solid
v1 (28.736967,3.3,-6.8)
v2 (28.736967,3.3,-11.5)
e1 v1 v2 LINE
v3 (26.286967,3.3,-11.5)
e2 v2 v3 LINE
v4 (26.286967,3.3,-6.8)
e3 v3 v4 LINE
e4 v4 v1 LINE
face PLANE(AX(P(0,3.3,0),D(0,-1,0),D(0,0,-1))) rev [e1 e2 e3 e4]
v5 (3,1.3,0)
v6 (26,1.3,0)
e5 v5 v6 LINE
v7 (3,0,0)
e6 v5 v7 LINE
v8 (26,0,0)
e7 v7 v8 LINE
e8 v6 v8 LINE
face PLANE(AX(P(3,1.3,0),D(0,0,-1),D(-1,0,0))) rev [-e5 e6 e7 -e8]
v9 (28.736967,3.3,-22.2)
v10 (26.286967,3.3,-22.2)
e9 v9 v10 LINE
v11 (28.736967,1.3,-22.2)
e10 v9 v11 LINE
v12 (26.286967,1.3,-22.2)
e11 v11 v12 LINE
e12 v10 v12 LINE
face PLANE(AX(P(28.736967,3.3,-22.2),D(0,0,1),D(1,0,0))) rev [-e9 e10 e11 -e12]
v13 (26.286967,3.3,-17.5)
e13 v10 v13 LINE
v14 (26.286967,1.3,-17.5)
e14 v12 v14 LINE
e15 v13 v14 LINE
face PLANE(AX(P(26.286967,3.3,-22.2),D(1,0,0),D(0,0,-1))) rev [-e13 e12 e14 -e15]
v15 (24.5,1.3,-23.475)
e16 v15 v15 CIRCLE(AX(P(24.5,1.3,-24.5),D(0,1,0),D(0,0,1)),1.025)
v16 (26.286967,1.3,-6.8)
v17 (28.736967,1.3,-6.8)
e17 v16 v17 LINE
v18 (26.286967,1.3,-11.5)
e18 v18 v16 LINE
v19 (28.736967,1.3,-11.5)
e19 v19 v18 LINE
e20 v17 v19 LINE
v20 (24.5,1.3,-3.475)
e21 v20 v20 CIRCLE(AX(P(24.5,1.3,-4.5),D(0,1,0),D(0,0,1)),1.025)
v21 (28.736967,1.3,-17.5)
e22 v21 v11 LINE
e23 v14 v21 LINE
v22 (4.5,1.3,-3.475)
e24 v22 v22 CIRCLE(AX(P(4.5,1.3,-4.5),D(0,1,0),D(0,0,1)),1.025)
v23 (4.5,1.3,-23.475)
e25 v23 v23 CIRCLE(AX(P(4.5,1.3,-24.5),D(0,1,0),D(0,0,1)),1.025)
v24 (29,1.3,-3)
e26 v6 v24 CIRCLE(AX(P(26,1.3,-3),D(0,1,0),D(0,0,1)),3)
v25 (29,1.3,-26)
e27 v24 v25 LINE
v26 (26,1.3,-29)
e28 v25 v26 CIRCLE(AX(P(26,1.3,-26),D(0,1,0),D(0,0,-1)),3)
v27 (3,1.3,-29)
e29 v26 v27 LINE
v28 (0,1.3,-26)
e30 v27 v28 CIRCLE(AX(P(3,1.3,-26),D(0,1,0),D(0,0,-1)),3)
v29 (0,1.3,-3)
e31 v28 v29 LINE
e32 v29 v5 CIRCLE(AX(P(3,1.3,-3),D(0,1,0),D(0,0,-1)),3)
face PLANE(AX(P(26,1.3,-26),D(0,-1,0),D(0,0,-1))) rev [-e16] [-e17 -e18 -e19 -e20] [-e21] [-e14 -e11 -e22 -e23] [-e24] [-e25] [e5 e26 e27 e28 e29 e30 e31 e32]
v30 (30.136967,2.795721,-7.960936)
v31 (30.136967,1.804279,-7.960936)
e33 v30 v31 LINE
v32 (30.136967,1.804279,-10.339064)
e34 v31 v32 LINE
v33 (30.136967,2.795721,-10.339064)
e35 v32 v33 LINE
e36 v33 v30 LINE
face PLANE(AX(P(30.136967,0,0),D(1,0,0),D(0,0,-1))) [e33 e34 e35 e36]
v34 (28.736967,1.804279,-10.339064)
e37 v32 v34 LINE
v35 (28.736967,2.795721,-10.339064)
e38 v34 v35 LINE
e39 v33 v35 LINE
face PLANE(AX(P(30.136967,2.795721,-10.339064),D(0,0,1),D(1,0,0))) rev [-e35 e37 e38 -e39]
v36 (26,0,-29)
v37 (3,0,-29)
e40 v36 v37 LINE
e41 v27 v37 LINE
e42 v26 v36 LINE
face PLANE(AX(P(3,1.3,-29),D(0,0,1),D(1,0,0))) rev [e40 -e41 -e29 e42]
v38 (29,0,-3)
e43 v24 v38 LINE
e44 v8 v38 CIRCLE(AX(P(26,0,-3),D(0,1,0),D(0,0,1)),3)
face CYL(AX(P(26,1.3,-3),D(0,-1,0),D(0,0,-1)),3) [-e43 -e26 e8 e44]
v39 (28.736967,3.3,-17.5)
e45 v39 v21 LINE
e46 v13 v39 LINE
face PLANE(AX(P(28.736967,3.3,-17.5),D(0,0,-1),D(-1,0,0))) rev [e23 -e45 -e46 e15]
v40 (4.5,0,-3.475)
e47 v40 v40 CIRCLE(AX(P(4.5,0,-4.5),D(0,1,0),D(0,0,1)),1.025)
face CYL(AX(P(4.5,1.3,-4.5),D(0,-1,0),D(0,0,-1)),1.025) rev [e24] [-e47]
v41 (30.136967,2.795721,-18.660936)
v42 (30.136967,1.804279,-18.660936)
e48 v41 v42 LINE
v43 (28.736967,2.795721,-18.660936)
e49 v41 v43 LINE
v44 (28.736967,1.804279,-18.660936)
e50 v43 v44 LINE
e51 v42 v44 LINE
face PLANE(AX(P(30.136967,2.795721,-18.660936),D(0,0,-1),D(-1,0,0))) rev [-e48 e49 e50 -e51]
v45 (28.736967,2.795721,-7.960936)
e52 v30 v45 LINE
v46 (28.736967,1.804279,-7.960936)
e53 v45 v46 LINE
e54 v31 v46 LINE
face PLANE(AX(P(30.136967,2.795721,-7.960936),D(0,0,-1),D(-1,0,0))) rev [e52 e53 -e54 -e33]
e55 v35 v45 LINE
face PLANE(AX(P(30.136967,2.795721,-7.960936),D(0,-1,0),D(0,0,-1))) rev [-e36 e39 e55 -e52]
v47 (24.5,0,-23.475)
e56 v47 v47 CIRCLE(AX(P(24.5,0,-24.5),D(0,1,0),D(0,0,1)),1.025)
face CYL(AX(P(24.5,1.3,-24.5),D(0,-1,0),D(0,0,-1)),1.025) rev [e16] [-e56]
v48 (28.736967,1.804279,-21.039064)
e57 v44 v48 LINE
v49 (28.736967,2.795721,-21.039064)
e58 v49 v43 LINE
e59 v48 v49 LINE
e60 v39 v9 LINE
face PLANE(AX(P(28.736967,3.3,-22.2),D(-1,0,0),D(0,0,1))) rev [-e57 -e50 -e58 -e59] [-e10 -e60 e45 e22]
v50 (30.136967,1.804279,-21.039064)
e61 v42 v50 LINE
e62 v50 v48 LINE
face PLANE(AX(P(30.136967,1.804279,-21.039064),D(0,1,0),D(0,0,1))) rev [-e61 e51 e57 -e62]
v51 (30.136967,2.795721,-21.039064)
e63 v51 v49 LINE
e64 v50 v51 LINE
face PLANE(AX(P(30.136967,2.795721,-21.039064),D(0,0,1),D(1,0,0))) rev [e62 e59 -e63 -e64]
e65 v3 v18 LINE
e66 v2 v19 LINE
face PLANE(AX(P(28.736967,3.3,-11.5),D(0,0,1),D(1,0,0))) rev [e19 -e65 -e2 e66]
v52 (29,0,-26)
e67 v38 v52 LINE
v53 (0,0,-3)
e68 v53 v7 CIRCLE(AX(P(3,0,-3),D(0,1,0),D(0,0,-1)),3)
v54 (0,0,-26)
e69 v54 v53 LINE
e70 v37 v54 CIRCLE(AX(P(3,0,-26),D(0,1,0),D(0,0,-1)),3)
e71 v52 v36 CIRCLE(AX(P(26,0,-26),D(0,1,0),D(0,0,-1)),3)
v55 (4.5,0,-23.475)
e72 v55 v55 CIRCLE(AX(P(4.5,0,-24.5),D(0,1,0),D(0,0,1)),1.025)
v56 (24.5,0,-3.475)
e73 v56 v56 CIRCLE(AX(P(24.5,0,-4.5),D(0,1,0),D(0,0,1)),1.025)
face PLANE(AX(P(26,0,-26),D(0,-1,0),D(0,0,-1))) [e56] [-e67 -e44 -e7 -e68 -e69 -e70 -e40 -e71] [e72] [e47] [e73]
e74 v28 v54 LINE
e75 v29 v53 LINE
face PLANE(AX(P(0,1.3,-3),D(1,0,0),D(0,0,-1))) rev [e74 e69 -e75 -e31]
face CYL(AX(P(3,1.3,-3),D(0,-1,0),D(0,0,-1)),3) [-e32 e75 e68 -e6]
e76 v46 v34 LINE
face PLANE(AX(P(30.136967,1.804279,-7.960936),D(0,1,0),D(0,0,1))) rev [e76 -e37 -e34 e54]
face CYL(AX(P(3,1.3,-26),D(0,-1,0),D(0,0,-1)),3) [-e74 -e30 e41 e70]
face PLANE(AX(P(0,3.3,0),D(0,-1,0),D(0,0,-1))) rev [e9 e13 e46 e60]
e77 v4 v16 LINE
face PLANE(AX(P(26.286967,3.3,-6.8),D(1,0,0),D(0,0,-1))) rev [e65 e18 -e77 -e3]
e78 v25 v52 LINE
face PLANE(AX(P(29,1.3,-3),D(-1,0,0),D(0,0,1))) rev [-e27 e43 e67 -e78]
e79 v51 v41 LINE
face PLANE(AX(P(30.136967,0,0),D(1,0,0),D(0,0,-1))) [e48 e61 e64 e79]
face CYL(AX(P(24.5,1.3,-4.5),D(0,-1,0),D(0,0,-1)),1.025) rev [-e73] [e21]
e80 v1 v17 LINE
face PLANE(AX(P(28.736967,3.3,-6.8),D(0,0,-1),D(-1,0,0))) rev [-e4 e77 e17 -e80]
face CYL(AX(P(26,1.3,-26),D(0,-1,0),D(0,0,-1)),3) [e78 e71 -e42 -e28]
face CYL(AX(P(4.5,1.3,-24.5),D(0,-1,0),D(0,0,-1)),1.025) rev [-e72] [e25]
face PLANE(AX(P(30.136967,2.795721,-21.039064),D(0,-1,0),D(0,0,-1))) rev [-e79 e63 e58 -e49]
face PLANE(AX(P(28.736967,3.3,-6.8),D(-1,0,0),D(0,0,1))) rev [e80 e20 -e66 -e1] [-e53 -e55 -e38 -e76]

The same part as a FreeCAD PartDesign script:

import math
import FreeCAD as App
import Part
import Sketcher
Q = App.Units.Quantity

doc = App.newDocument("Part")
body = doc.addObject("PartDesign::Body", "Body")

# Sketch on XZ plane
sketch1 = body.newObject("Sketcher::SketchObject", "Sketch")
sketch1.AttachmentSupport = (doc.getObject("XZ_Plane"), [""])
sketch1.MapMode = "FlatFace"
sketch1.addGeometry([
    Part.LineSegment(App.Vector(3, 0, 0), App.Vector(26, 0, 0)),  # 0
    Part.ArcOfCircle(Part.Circle(App.Vector(26, -3, 0), App.Vector(0, 0, 1), 3), math.radians(0), math.radians(90)),  # 1
    Part.LineSegment(App.Vector(29, -3, 0), App.Vector(29, -26, 0)),  # 2
    Part.ArcOfCircle(Part.Circle(App.Vector(26, -26, 0), App.Vector(0, 0, 1), 3), math.radians(-90), math.radians(0)),  # 3
    Part.LineSegment(App.Vector(26, -29, 0), App.Vector(3, -29, 0)),  # 4
    Part.ArcOfCircle(Part.Circle(App.Vector(3, -26, 0), App.Vector(0, 0, 1), 3), math.radians(180), math.radians(270)),  # 5
    Part.LineSegment(App.Vector(0, -26, 0), App.Vector(0, -3, 0)),  # 6
    Part.ArcOfCircle(Part.Circle(App.Vector(3, -3, 0), App.Vector(0, 0, 1), 3), math.radians(90), math.radians(180)),  # 7
    Part.Circle(App.Vector(4.5, -4.5, 0), App.Vector(0, 0, 1), 1),  # 8
    Part.Circle(App.Vector(24.5, -4.5, 0), App.Vector(0, 0, 1), 1),  # 9
    Part.Circle(App.Vector(4.5, -24.5, 0), App.Vector(0, 0, 1), 1),  # 10
    Part.Circle(App.Vector(24.5, -24.5, 0), App.Vector(0, 0, 1), 1),  # 11
], False)
sketch1.addConstraint([
    Sketcher.Constraint("Tangent", 0, 2, 1, 2),
    Sketcher.Constraint("Tangent", 1, 1, 2, 1),
    Sketcher.Constraint("Tangent", 2, 2, 3, 2),
    Sketcher.Constraint("Tangent", 3, 1, 4, 1),
    Sketcher.Constraint("Tangent", 4, 2, 5, 2),
    Sketcher.Constraint("Tangent", 5, 1, 6, 1),
    Sketcher.Constraint("Tangent", 6, 2, 7, 2),
    Sketcher.Constraint("Tangent", 7, 1, 0, 1),
    Sketcher.Constraint("Horizontal", 0),
    Sketcher.Constraint("Vertical", 2),
    Sketcher.Constraint("Horizontal", 4),
    Sketcher.Constraint("Vertical", 6),
    Sketcher.Constraint("Equal", 1, 3),
    Sketcher.Constraint("Equal", 3, 5),
    Sketcher.Constraint("Equal", 5, 7),
    Sketcher.Constraint("Equal", 8, 9),
    Sketcher.Constraint("Equal", 9, 10),
    Sketcher.Constraint("Equal", 10, 11),
    Sketcher.Constraint("PointOnObject", 0, 2, -1),
    Sketcher.Constraint("PointOnObject", 5, 1, -2),
    Sketcher.Constraint("Horizontal", 8, 3, 9, 3),
    Sketcher.Constraint("Horizontal", 10, 3, 11, 3),
    Sketcher.Constraint("Vertical", 8, 3, 10, 3),
    Sketcher.Constraint("Vertical", 9, 3, 11, 3),
    Sketcher.Constraint("Equal", 4, 2),
    Sketcher.Constraint("Radius", 1, Q("3 mm")),
    Sketcher.Constraint("Diameter", 8, Q("2.05 mm")),
    Sketcher.Constraint("DistanceX", 0, 1, 0, 2, Q("23 mm")),
    Sketcher.Constraint("DistanceX", 8, 3, 9, 3, Q("20 mm")),
    Sketcher.Constraint("DistanceY", 10, 3, 8, 3, Q("20 mm")),
    Sketcher.Constraint("DistanceX", -1, 1, 8, 3, Q("4.5 mm")),
    Sketcher.Constraint("DistanceY", 8, 3, -1, 1, Q("4.5 mm")),
])
pad1 = body.newObject("PartDesign::Pad", "Pad")
pad1.Profile = sketch1
pad1.Length = 1.3
pad1.Reversed = True

# Sketch on XZ plane
sketch2 = body.newObject("Sketcher::SketchObject", "Sketch001")
sketch2.AttachmentSupport = (doc.getObject("XZ_Plane"), [""])
sketch2.MapMode = "FlatFace"
sketch2.AttachmentOffset = App.Placement(App.Vector(0, 0, -1.3), App.Rotation())
sketch2.addGeometry([
    Part.LineSegment(App.Vector(26.3, -22.2, 0), App.Vector(26.3, -17.5, 0)),  # 0
    Part.LineSegment(App.Vector(26.3, -17.5, 0), App.Vector(28.7, -17.5, 0)),  # 1
    Part.LineSegment(App.Vector(28.7, -17.5, 0), App.Vector(28.7, -22.2, 0)),  # 2
    Part.LineSegment(App.Vector(28.7, -22.2, 0), App.Vector(26.3, -22.2, 0)),  # 3
    Part.LineSegment(App.Vector(26.3, -11.5, 0), App.Vector(26.3, -6.8, 0)),  # 4
    Part.LineSegment(App.Vector(26.3, -6.8, 0), App.Vector(28.7, -6.8, 0)),  # 5
    Part.LineSegment(App.Vector(28.7, -6.8, 0), App.Vector(28.7, -11.5, 0)),  # 6
    Part.LineSegment(App.Vector(28.7, -11.5, 0), App.Vector(26.3, -11.5, 0)),  # 7
], False)
sketch2.addConstraint([
    Sketcher.Constraint("Coincident", 0, 2, 1, 1),
    Sketcher.Constraint("Coincident", 1, 2, 2, 1),
    Sketcher.Constraint("Coincident", 2, 2, 3, 1),
    Sketcher.Constraint("Coincident", 3, 2, 0, 1),
    Sketcher.Constraint("Coincident", 4, 2, 5, 1),
    Sketcher.Constraint("Coincident", 5, 2, 6, 1),
    Sketcher.Constraint("Coincident", 6, 2, 7, 1),
    Sketcher.Constraint("Coincident", 7, 2, 4, 1),
    Sketcher.Constraint("Vertical", 0),
    Sketcher.Constraint("Horizontal", 1),
    Sketcher.Constraint("Vertical", 2),
    Sketcher.Constraint("Horizontal", 3),
    Sketcher.Constraint("Vertical", 4),
    Sketcher.Constraint("Horizontal", 5),
    Sketcher.Constraint("Vertical", 6),
    Sketcher.Constraint("Horizontal", 7),
    Sketcher.Constraint("Vertical", 3, 2, 4, 2),
    Sketcher.Constraint("Vertical", 2, 2, 5, 2),
    Sketcher.Constraint("Equal", 2, 4),
    Sketcher.Constraint("DistanceY", 0, 1, 0, 2, Q("4.7 mm")),
    Sketcher.Constraint("DistanceY", 1, 2, 6, 2, Q("6 mm")),
    Sketcher.Constraint("DistanceX", 1, 1, 1, 2, Q("2.45 mm")),
    Sketcher.Constraint("DistanceY", 0, 2, -1, 1, Q("17.5 mm")),
    Sketcher.Constraint("DistanceX", -1, 1, 0, 2, Q("26.286967 mm")),
])
pad2 = body.newObject("PartDesign::Pad", "Pad001")
pad2.Profile = sketch2
pad2.Length = 2
pad2.Reversed = True

# Sketch on YZ plane
sketch3 = body.newObject("Sketcher::SketchObject", "Sketch002")
sketch3.AttachmentSupport = (doc.getObject("YZ_Plane"), [""])
sketch3.MapMode = "FlatFace"
sketch3.AttachmentOffset = App.Placement(App.Vector(0, 0, 28.736967), App.Rotation())
sketch3.addGeometry([
    Part.LineSegment(App.Vector(2.8, -8, 0), App.Vector(1.8, -8, 0)),  # 0
    Part.LineSegment(App.Vector(1.8, -8, 0), App.Vector(1.8, -10.3, 0)),  # 1
    Part.LineSegment(App.Vector(1.8, -10.3, 0), App.Vector(2.8, -10.3, 0)),  # 2
    Part.LineSegment(App.Vector(2.8, -10.3, 0), App.Vector(2.8, -8, 0)),  # 3
    Part.LineSegment(App.Vector(2.8, -18.7, 0), App.Vector(1.8, -18.7, 0)),  # 4
    Part.LineSegment(App.Vector(1.8, -18.7, 0), App.Vector(1.8, -21, 0)),  # 5
    Part.LineSegment(App.Vector(1.8, -21, 0), App.Vector(2.8, -21, 0)),  # 6
    Part.LineSegment(App.Vector(2.8, -21, 0), App.Vector(2.8, -18.7, 0)),  # 7
], False)
sketch3.addConstraint([
    Sketcher.Constraint("Coincident", 0, 2, 1, 1),
    Sketcher.Constraint("Coincident", 1, 2, 2, 1),
    Sketcher.Constraint("Coincident", 2, 2, 3, 1),
    Sketcher.Constraint("Coincident", 3, 2, 0, 1),
    Sketcher.Constraint("Coincident", 4, 2, 5, 1),
    Sketcher.Constraint("Coincident", 5, 2, 6, 1),
    Sketcher.Constraint("Coincident", 6, 2, 7, 1),
    Sketcher.Constraint("Coincident", 7, 2, 4, 1),
    Sketcher.Constraint("Horizontal", 0),
    Sketcher.Constraint("Vertical", 1),
    Sketcher.Constraint("Horizontal", 2),
    Sketcher.Constraint("Vertical", 3),
    Sketcher.Constraint("Horizontal", 4),
    Sketcher.Constraint("Vertical", 5),
    Sketcher.Constraint("Horizontal", 6),
    Sketcher.Constraint("Vertical", 7),
    Sketcher.Constraint("Vertical", 1, 2, 4, 2),
    Sketcher.Constraint("Vertical", 3, 2, 6, 2),
    Sketcher.Constraint("Equal", 3, 5),
    Sketcher.Constraint("DistanceY", 4, 2, 0, 2, Q("10.7 mm")),
    Sketcher.Constraint("DistanceX", 0, 2, 0, 1, Q("0.991442 mm")),
    Sketcher.Constraint("DistanceY", 1, 2, 1, 1, Q("2.378128 mm")),
    Sketcher.Constraint("DistanceX", -1, 1, 0, 2, Q("1.804279 mm")),
    Sketcher.Constraint("DistanceY", 0, 2, -1, 1, Q("7.960936 mm")),
])
pad3 = body.newObject("PartDesign::Pad", "Pad002")
pad3.Profile = sketch3
pad3.Length = 1.4

doc.recompute()
